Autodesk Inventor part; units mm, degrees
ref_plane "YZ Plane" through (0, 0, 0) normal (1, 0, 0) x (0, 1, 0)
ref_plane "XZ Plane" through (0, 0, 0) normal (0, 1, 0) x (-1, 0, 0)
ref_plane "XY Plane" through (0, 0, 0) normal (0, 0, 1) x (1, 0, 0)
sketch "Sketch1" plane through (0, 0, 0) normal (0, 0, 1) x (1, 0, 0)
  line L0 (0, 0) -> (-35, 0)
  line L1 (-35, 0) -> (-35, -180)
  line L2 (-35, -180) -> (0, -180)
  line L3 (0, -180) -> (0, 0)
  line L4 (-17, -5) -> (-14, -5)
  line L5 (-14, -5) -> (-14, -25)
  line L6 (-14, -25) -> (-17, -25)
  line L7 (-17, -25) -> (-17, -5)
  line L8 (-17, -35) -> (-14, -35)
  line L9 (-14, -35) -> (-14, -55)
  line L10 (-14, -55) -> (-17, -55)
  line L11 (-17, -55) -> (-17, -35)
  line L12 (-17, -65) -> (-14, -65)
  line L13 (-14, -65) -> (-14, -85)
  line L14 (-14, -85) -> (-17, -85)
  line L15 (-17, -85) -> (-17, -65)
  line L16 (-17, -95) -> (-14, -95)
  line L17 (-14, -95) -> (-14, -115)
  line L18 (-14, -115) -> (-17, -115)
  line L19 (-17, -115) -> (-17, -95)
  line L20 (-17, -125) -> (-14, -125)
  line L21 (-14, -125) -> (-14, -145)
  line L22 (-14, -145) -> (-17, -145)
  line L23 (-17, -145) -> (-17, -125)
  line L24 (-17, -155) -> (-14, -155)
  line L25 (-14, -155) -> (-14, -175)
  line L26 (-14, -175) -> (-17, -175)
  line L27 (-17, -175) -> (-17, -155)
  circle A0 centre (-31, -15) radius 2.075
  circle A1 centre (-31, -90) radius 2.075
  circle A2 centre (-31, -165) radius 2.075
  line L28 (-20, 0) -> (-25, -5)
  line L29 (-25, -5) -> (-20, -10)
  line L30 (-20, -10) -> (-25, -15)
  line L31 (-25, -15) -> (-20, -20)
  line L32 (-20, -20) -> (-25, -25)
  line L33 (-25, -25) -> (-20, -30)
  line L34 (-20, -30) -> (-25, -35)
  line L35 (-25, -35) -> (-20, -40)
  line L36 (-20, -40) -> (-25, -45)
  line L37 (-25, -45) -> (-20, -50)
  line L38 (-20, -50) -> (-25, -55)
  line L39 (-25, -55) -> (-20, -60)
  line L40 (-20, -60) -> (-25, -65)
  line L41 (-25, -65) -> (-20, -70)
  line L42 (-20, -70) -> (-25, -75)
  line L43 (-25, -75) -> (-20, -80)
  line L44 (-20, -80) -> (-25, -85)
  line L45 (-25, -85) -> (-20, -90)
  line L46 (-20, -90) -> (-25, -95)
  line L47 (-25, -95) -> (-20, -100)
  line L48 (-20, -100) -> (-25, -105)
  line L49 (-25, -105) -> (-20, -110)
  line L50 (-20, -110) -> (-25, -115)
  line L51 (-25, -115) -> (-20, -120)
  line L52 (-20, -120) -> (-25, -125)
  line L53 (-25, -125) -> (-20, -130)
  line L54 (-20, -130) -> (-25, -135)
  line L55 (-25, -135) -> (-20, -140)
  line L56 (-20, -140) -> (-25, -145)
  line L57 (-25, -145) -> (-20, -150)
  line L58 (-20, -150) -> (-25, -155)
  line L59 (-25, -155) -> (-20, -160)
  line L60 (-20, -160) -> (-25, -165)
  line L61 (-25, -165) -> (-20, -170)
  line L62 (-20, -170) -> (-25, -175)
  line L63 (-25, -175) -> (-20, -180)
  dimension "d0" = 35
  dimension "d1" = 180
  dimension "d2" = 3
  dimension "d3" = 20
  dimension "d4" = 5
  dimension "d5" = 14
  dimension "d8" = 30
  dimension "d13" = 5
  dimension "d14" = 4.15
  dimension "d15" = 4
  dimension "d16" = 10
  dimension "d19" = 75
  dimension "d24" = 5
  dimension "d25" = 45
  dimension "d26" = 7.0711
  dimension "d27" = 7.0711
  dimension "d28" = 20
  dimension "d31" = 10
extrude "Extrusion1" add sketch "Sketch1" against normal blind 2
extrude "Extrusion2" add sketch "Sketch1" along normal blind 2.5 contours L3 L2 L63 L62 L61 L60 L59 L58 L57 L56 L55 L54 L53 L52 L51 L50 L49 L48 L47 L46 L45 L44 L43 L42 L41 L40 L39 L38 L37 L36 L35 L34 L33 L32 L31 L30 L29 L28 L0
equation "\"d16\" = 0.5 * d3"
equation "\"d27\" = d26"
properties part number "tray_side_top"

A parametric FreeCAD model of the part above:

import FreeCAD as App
import Part
import Sketcher

V = App.Vector

doc = App.newDocument("Part")
params = doc.addObject("Spreadsheet::Sheet", "Params")
for row, (alias, value) in enumerate([
    ("sketch1_diameter", "4.15 mm"),
    ("sketch1_width", "35 mm"),
    ("sketch1_width2", "3 mm"),
    ("sketch1_height", "180 mm"),
    ("sketch1_height2", "20 mm"),
    ("pad1_length", "2 mm"),
    ("sketch2_width", "20 mm"),
    ("sketch2_width2", "3 mm"),
    ("pad2_length", "2.5 mm"),
], start=1):
    params.set(f"A{row}", alias)
    params.set(f"B{row}", "=" + value)
    params.setAlias(f"B{row}", alias)

body = doc.addObject("PartDesign::Body", "Body")

sketch1 = doc.addObject("Sketcher::SketchObject", "Sketch")
body.addObject(sketch1)
sketch1.AttachmentSupport = (doc.XY_Plane, [""])
sketch1.MapMode = "FlatFace"
sketch1.addGeometry([
    Part.LineSegment(V(0, -180, 0), V(0, 0, 0)),
    Part.LineSegment(V(0, 0, 0), V(-35, 0, 0)),
    Part.LineSegment(V(-35, 0, 0), V(-35, -180, 0)),
    Part.LineSegment(V(-35, -180, 0), V(0, -180, 0)),
    Part.LineSegment(V(-17, -175, 0), V(-17, -155, 0)),
    Part.LineSegment(V(-17, -155, 0), V(-14, -155, 0)),
    Part.LineSegment(V(-14, -155, 0), V(-14, -175, 0)),
    Part.LineSegment(V(-14, -175, 0), V(-17, -175, 0)),
    Part.LineSegment(V(-17, -145, 0), V(-17, -125, 0)),
    Part.LineSegment(V(-17, -125, 0), V(-14, -125, 0)),
    Part.LineSegment(V(-14, -125, 0), V(-14, -145, 0)),
    Part.LineSegment(V(-14, -145, 0), V(-17, -145, 0)),
    Part.LineSegment(V(-17, -115, 0), V(-17, -95, 0)),
    Part.LineSegment(V(-17, -95, 0), V(-14, -95, 0)),
    Part.LineSegment(V(-14, -95, 0), V(-14, -115, 0)),
    Part.LineSegment(V(-14, -115, 0), V(-17, -115, 0)),
    Part.LineSegment(V(-17, -85, 0), V(-17, -65, 0)),
    Part.LineSegment(V(-17, -65, 0), V(-14, -65, 0)),
    Part.LineSegment(V(-14, -65, 0), V(-14, -85, 0)),
    Part.LineSegment(V(-14, -85, 0), V(-17, -85, 0)),
    Part.LineSegment(V(-17, -55, 0), V(-17, -35, 0)),
    Part.LineSegment(V(-17, -35, 0), V(-14, -35, 0)),
    Part.LineSegment(V(-14, -35, 0), V(-14, -55, 0)),
    Part.LineSegment(V(-14, -55, 0), V(-17, -55, 0)),
    Part.LineSegment(V(-17, -25, 0), V(-17, -5, 0)),
    Part.LineSegment(V(-17, -5, 0), V(-14, -5, 0)),
    Part.LineSegment(V(-14, -5, 0), V(-14, -25, 0)),
    Part.LineSegment(V(-14, -25, 0), V(-17, -25, 0)),
    Part.Circle(V(-31, -165, 0), V(0, 0, 1), 2.1),
    Part.Circle(V(-31, -90, 0), V(0, 0, 1), 2.1),
    Part.Circle(V(-31, -15, 0), V(0, 0, 1), 2.1),
], False)
sketch1.addConstraint([
    Sketcher.Constraint("Coincident", 0, 2, 1, 1),
    Sketcher.Constraint("Coincident", 1, 2, 2, 1),
    Sketcher.Constraint("Coincident", 2, 2, 3, 1),
    Sketcher.Constraint("Coincident", 3, 2, 0, 1),
    Sketcher.Constraint("Coincident", 4, 2, 5, 1),
    Sketcher.Constraint("Coincident", 5, 2, 6, 1),
    Sketcher.Constraint("Coincident", 6, 2, 7, 1),
    Sketcher.Constraint("Coincident", 7, 2, 4, 1),
    Sketcher.Constraint("Coincident", 8, 2, 9, 1),
    Sketcher.Constraint("Coincident", 9, 2, 10, 1),
    Sketcher.Constraint("Coincident", 10, 2, 11, 1),
    Sketcher.Constraint("Coincident", 11, 2, 8, 1),
    Sketcher.Constraint("Coincident", 12, 2, 13, 1),
    Sketcher.Constraint("Coincident", 13, 2, 14, 1),
    Sketcher.Constraint("Coincident", 14, 2, 15, 1),
    Sketcher.Constraint("Coincident", 15, 2, 12, 1),
    Sketcher.Constraint("Coincident", 16, 2, 17, 1),
    Sketcher.Constraint("Coincident", 17, 2, 18, 1),
    Sketcher.Constraint("Coincident", 18, 2, 19, 1),
    Sketcher.Constraint("Coincident", 19, 2, 16, 1),
    Sketcher.Constraint("Coincident", 20, 2, 21, 1),
    Sketcher.Constraint("Coincident", 21, 2, 22, 1),
    Sketcher.Constraint("Coincident", 22, 2, 23, 1),
    Sketcher.Constraint("Coincident", 23, 2, 20, 1),
    Sketcher.Constraint("Coincident", 24, 2, 25, 1),
    Sketcher.Constraint("Coincident", 25, 2, 26, 1),
    Sketcher.Constraint("Coincident", 26, 2, 27, 1),
    Sketcher.Constraint("Coincident", 27, 2, 24, 1),
    Sketcher.Constraint("Vertical", 0),
    Sketcher.Constraint("Horizontal", 1),
    Sketcher.Constraint("Vertical", 2),
    Sketcher.Constraint("Horizontal", 3),
    Sketcher.Constraint("Vertical", 4),
    Sketcher.Constraint("Horizontal", 5),
    Sketcher.Constraint("Vertical", 6),
    Sketcher.Constraint("Horizontal", 7),
    Sketcher.Constraint("Vertical", 8),
    Sketcher.Constraint("Horizontal", 9),
    Sketcher.Constraint("Vertical", 10),
    Sketcher.Constraint("Horizontal", 11),
    Sketcher.Constraint("Vertical", 12),
    Sketcher.Constraint("Horizontal", 13),
    Sketcher.Constraint("Vertical", 14),
    Sketcher.Constraint("Horizontal", 15),
    Sketcher.Constraint("Vertical", 16),
    Sketcher.Constraint("Horizontal", 17),
    Sketcher.Constraint("Vertical", 18),
    Sketcher.Constraint("Horizontal", 19),
    Sketcher.Constraint("Vertical", 20),
    Sketcher.Constraint("Horizontal", 21),
    Sketcher.Constraint("Vertical", 22),
    Sketcher.Constraint("Horizontal", 23),
    Sketcher.Constraint("Vertical", 24),
    Sketcher.Constraint("Horizontal", 25),
    Sketcher.Constraint("Vertical", 26),
    Sketcher.Constraint("Horizontal", 27),
    Sketcher.Constraint("Coincident", 0, 2, -1, 1),
    Sketcher.Constraint("Equal", 28, 29),
    Sketcher.Constraint("Equal", 29, 30),
    Sketcher.Constraint("Vertical", 28, 3, 29, 3),
    Sketcher.Constraint("Vertical", 29, 3, 30, 3),
    Sketcher.Constraint("Vertical", 7, 2, 8, 2),
    Sketcher.Constraint("Vertical", 6, 2, 9, 2),
    Sketcher.Constraint("Vertical", 11, 2, 12, 2),
    Sketcher.Constraint("Vertical", 10, 2, 13, 2),
    Sketcher.Constraint("Vertical", 15, 2, 16, 2),
    Sketcher.Constraint("Vertical", 14, 2, 17, 2),
    Sketcher.Constraint("Vertical", 19, 2, 20, 2),
    Sketcher.Constraint("Vertical", 18, 2, 21, 2),
    Sketcher.Constraint("Vertical", 23, 2, 24, 2),
    Sketcher.Constraint("Vertical", 22, 2, 25, 2),
    Sketcher.Constraint("Equal", 6, 8),
    Sketcher.Constraint("Equal", 10, 12),
    Sketcher.Constraint("Equal", 14, 16),
    Sketcher.Constraint("Equal", 18, 20),
    Sketcher.Constraint("Equal", 22, 24),
    Sketcher.Constraint("Diameter", 28, 4.15),
    Sketcher.Constraint("DistanceX", 1, 2, 1, 1, 35.0),
    Sketcher.Constraint("DistanceX", 5, 1, 5, 2, 3.0),
    Sketcher.Constraint("DistanceY", 0, 1, 0, 2, 180.0),
    Sketcher.Constraint("DistanceY", 4, 1, 4, 2, 20.0),
    Sketcher.Constraint("DistanceX", 5, 2, -1, 1, 14.0),
    Sketcher.Constraint("DistanceY", 20, 2, -1, 1, 35.0),
    Sketcher.Constraint("DistanceY", 24, 2, -1, 1, 5.0),
    Sketcher.Constraint("DistanceY", 28, 3, 29, 3, 75.0),
    Sketcher.Constraint("DistanceY", 29, 3, 30, 3, 75.0),
    Sketcher.Constraint("DistanceX", 1, 2, 30, 3, 4.0),
    Sketcher.Constraint("DistanceY", 28, 3, 4, 2, 10.0),
    Sketcher.Constraint("DistanceY", 3, 2, 6, 2, 5.0),
    Sketcher.Constraint("DistanceY", 4, 2, 8, 2, 30.0),
    Sketcher.Constraint("DistanceY", 12, 2, 29, 3, 5.0),
    Sketcher.Constraint("DistanceY", 12, 2, 16, 2, 30.0),
])
sketch1.setExpression("Constraints[76]", "Params.sketch1_diameter")
sketch1.setExpression("Constraints[77]", "Params.sketch1_width")
sketch1.setExpression("Constraints[78]", "Params.sketch1_width2")
sketch1.setExpression("Constraints[79]", "Params.sketch1_height")
sketch1.setExpression("Constraints[80]", "Params.sketch1_height2")
pad1 = doc.addObject("PartDesign::Pad", "Pad")
body.addObject(pad1)
pad1.Profile = sketch1
pad1.setExpression("Length", "Params.pad1_length")
pad1.Reversed = True

sketch2 = doc.addObject("Sketcher::SketchObject", "Sketch001")
body.addObject(sketch2)
sketch2.AttachmentSupport = (doc.XY_Plane, [""])
sketch2.MapMode = "FlatFace"
sketch2.addGeometry([
    Part.LineSegment(V(0, -180, 0), V(0, 0, 0)),
    Part.LineSegment(V(0, 0, 0), V(-20, 0, 0)),
    Part.LineSegment(V(-20, 0, 0), V(-25, -5, 0)),
    Part.LineSegment(V(-25, -5, 0), V(-20, -10, 0)),
    Part.LineSegment(V(-20, -10, 0), V(-25, -15, 0)),
    Part.LineSegment(V(-25, -15, 0), V(-20, -20, 0)),
    Part.LineSegment(V(-20, -20, 0), V(-25, -25, 0)),
    Part.LineSegment(V(-25, -25, 0), V(-20, -30, 0)),
    Part.LineSegment(V(-20, -30, 0), V(-25, -35, 0)),
    Part.LineSegment(V(-25, -35, 0), V(-20, -40, 0)),
    Part.LineSegment(V(-20, -40, 0), V(-25, -45, 0)),
    Part.LineSegment(V(-25, -45, 0), V(-20, -50, 0)),
    Part.LineSegment(V(-20, -50, 0), V(-25, -55, 0)),
    Part.LineSegment(V(-25, -55, 0), V(-20, -60, 0)),
    Part.LineSegment(V(-20, -60, 0), V(-25, -65, 0)),
    Part.LineSegment(V(-25, -65, 0), V(-20, -70, 0)),
    Part.LineSegment(V(-20, -70, 0), V(-25, -75, 0)),
    Part.LineSegment(V(-25, -75, 0), V(-20, -80, 0)),
    Part.LineSegment(V(-20, -80, 0), V(-25, -85, 0)),
    Part.LineSegment(V(-25, -85, 0), V(-20, -90, 0)),
    Part.LineSegment(V(-20, -90, 0), V(-25, -95, 0)),
    Part.LineSegment(V(-25, -95, 0), V(-20, -100, 0)),
    Part.LineSegment(V(-20, -100, 0), V(-25, -105, 0)),
    Part.LineSegment(V(-25, -105, 0), V(-20, -110, 0)),
    Part.LineSegment(V(-20, -110, 0), V(-25, -115, 0)),
    Part.LineSegment(V(-25, -115, 0), V(-20, -120, 0)),
    Part.LineSegment(V(-20, -120, 0), V(-25, -125, 0)),
    Part.LineSegment(V(-25, -125, 0), V(-20, -130, 0)),
    Part.LineSegment(V(-20, -130, 0), V(-25, -135, 0)),
    Part.LineSegment(V(-25, -135, 0), V(-20, -140, 0)),
    Part.LineSegment(V(-20, -140, 0), V(-25, -145, 0)),
    Part.LineSegment(V(-25, -145, 0), V(-20, -150, 0)),
    Part.LineSegment(V(-20, -150, 0), V(-25, -155, 0)),
    Part.LineSegment(V(-25, -155, 0), V(-20, -160, 0)),
    Part.LineSegment(V(-20, -160, 0), V(-25, -165, 0)),
    Part.LineSegment(V(-25, -165, 0), V(-20, -170, 0)),
    Part.LineSegment(V(-20, -170, 0), V(-25, -175, 0)),
    Part.LineSegment(V(-25, -175, 0), V(-20, -180, 0)),
    Part.LineSegment(V(-20, -180, 0), V(0, -180, 0)),
    Part.LineSegment(V(-17, -175, 0), V(-17, -155, 0)),
    Part.LineSegment(V(-17, -155, 0), V(-14, -155, 0)),
    Part.LineSegment(V(-14, -155, 0), V(-14, -175, 0)),
    Part.LineSegment(V(-14, -175, 0), V(-17, -175, 0)),
    Part.LineSegment(V(-17, -145, 0), V(-17, -125, 0)),
    Part.LineSegment(V(-17, -125, 0), V(-14, -125, 0)),
    Part.LineSegment(V(-14, -125, 0), V(-14, -145, 0)),
    Part.LineSegment(V(-14, -145, 0), V(-17, -145, 0)),
    Part.LineSegment(V(-17, -115, 0), V(-17, -95, 0)),
    Part.LineSegment(V(-17, -95, 0), V(-14, -95, 0)),
    Part.LineSegment(V(-14, -95, 0), V(-14, -115, 0)),
    Part.LineSegment(V(-14, -115, 0), V(-17, -115, 0)),
    Part.LineSegment(V(-17, -85, 0), V(-17, -65, 0)),
    Part.LineSegment(V(-17, -65, 0), V(-14, -65, 0)),
    Part.LineSegment(V(-14, -65, 0), V(-14, -85, 0)),
    Part.LineSegment(V(-14, -85, 0), V(-17, -85, 0)),
    Part.LineSegment(V(-17, -55, 0), V(-17, -35, 0)),
    Part.LineSegment(V(-17, -35, 0), V(-14, -35, 0)),
    Part.LineSegment(V(-14, -35, 0), V(-14, -55, 0)),
    Part.LineSegment(V(-14, -55, 0), V(-17, -55, 0)),
    Part.LineSegment(V(-17, -25, 0), V(-17, -5, 0)),
    Part.LineSegment(V(-17, -5, 0), V(-14, -5, 0)),
    Part.LineSegment(V(-14, -5, 0), V(-14, -25, 0)),
    Part.LineSegment(V(-14, -25, 0), V(-17, -25, 0)),
], False)
sketch2.addConstraint([
    Sketcher.Constraint("Coincident", 0, 2, 1, 1),
    Sketcher.Constraint("Coincident", 1, 2, 2, 1),
    Sketcher.Constraint("Coincident", 2, 2, 3, 1),
    Sketcher.Constraint("Coincident", 3, 2, 4, 1),
    Sketcher.Constraint("Coincident", 4, 2, 5, 1),
    Sketcher.Constraint("Coincident", 5, 2, 6, 1),
    Sketcher.Constraint("Coincident", 6, 2, 7, 1),
    Sketcher.Constraint("Coincident", 7, 2, 8, 1),
    Sketcher.Constraint("Coincident", 8, 2, 9, 1),
    Sketcher.Constraint("Coincident", 9, 2, 10, 1),
    Sketcher.Constraint("Coincident", 10, 2, 11, 1),
    Sketcher.Constraint("Coincident", 11, 2, 12, 1),
    Sketcher.Constraint("Coincident", 12, 2, 13, 1),
    Sketcher.Constraint("Coincident", 13, 2, 14, 1),
    Sketcher.Constraint("Coincident", 14, 2, 15, 1),
    Sketcher.Constraint("Coincident", 15, 2, 16, 1),
    Sketcher.Constraint("Coincident", 16, 2, 17, 1),
    Sketcher.Constraint("Coincident", 17, 2, 18, 1),
    Sketcher.Constraint("Coincident", 18, 2, 19, 1),
    Sketcher.Constraint("Coincident", 19, 2, 20, 1),
    Sketcher.Constraint("Coincident", 20, 2, 21, 1),
    Sketcher.Constraint("Coincident", 21, 2, 22, 1),
    Sketcher.Constraint("Coincident", 22, 2, 23, 1),
    Sketcher.Constraint("Coincident", 23, 2, 24, 1),
    Sketcher.Constraint("Coincident", 24, 2, 25, 1),
    Sketcher.Constraint("Coincident", 25, 2, 26, 1),
    Sketcher.Constraint("Coincident", 26, 2, 27, 1),
    Sketcher.Constraint("Coincident", 27, 2, 28, 1),
    Sketcher.Constraint("Coincident", 28, 2, 29, 1),
    Sketcher.Constraint("Coincident", 29, 2, 30, 1),
    Sketcher.Constraint("Coincident", 30, 2, 31, 1),
    Sketcher.Constraint("Coincident", 31, 2, 32, 1),
    Sketcher.Constraint("Coincident", 32, 2, 33, 1),
    Sketcher.Constraint("Coincident", 33, 2, 34, 1),
    Sketcher.Constraint("Coincident", 34, 2, 35, 1),
    Sketcher.Constraint("Coincident", 35, 2, 36, 1),
    Sketcher.Constraint("Coincident", 36, 2, 37, 1),
    Sketcher.Constraint("Coincident", 37, 2, 38, 1),
    Sketcher.Constraint("Coincident", 38, 2, 0, 1),
    Sketcher.Constraint("Coincident", 39, 2, 40, 1),
    Sketcher.Constraint("Coincident", 40, 2, 41, 1),
    Sketcher.Constraint("Coincident", 41, 2, 42, 1),
    Sketcher.Constraint("Coincident", 42, 2, 39, 1),
    Sketcher.Constraint("Coincident", 43, 2, 44, 1),
    Sketcher.Constraint("Coincident", 44, 2, 45, 1),
    Sketcher.Constraint("Coincident", 45, 2, 46, 1),
    Sketcher.Constraint("Coincident", 46, 2, 43, 1),
    Sketcher.Constraint("Coincident", 47, 2, 48, 1),
    Sketcher.Constraint("Coincident", 48, 2, 49, 1),
    Sketcher.Constraint("Coincident", 49, 2, 50, 1),
    Sketcher.Constraint("Coincident", 50, 2, 47, 1),
    Sketcher.Constraint("Coincident", 51, 2, 52, 1),
    Sketcher.Constraint("Coincident", 52, 2, 53, 1),
    Sketcher.Constraint("Coincident", 53, 2, 54, 1),
    Sketcher.Constraint("Coincident", 54, 2, 51, 1),
    Sketcher.Constraint("Coincident", 55, 2, 56, 1),
    Sketcher.Constraint("Coincident", 56, 2, 57, 1),
    Sketcher.Constraint("Coincident", 57, 2, 58, 1),
    Sketcher.Constraint("Coincident", 58, 2, 55, 1),
    Sketcher.Constraint("Coincident", 59, 2, 60, 1),
    Sketcher.Constraint("Coincident", 60, 2, 61, 1),
    Sketcher.Constraint("Coincident", 61, 2, 62, 1),
    Sketcher.Constraint("Coincident", 62, 2, 59, 1),
    Sketcher.Constraint("Vertical", 0),
    Sketcher.Constraint("Horizontal", 1),
    Sketcher.Constraint("Horizontal", 38),
    Sketcher.Constraint("Vertical", 39),
    Sketcher.Constraint("Horizontal", 40),
    Sketcher.Constraint("Vertical", 41),
    Sketcher.Constraint("Horizontal", 42),
    Sketcher.Constraint("Vertical", 43),
    Sketcher.Constraint("Horizontal", 44),
    Sketcher.Constraint("Vertical", 45),
    Sketcher.Constraint("Horizontal", 46),
    Sketcher.Constraint("Vertical", 47),
    Sketcher.Constraint("Horizontal", 48),
    Sketcher.Constraint("Vertical", 49),
    Sketcher.Constraint("Horizontal", 50),
    Sketcher.Constraint("Vertical", 51),
    Sketcher.Constraint("Horizontal", 52),
    Sketcher.Constraint("Vertical", 53),
    Sketcher.Constraint("Horizontal", 54),
    Sketcher.Constraint("Vertical", 55),
    Sketcher.Constraint("Horizontal", 56),
    Sketcher.Constraint("Vertical", 57),
    Sketcher.Constraint("Horizontal", 58),
    Sketcher.Constraint("Vertical", 59),
    Sketcher.Constraint("Horizontal", 60),
    Sketcher.Constraint("Vertical", 61),
    Sketcher.Constraint("Horizontal", 62),
    Sketcher.Constraint("Coincident", 0, 2, -1, 1),
    Sketcher.Constraint("Perpendicular", 2, 3),
    Sketcher.Constraint("Perpendicular", 3, 4),
    Sketcher.Constraint("Perpendicular", 4, 5),
    Sketcher.Constraint("Perpendicular", 5, 6),
    Sketcher.Constraint("Perpendicular", 6, 7),
    Sketcher.Constraint("Perpendicular", 7, 8),
    Sketcher.Constraint("Perpendicular", 8, 9),
    Sketcher.Constraint("Perpendicular", 9, 10),
    Sketcher.Constraint("Perpendicular", 10, 11),
    Sketcher.Constraint("Perpendicular", 11, 12),
    Sketcher.Constraint("Perpendicular", 12, 13),
    Sketcher.Constraint("Perpendicular", 13, 14),
    Sketcher.Constraint("Perpendicular", 14, 15),
    Sketcher.Constraint("Perpendicular", 15, 16),
    Sketcher.Constraint("Perpendicular", 16, 17),
    Sketcher.Constraint("Perpendicular", 17, 18),
    Sketcher.Constraint("Perpendicular", 18, 19),
    Sketcher.Constraint("Perpendicular", 19, 20),
    Sketcher.Constraint("Perpendicular", 20, 21),
    Sketcher.Constraint("Perpendicular", 21, 22),
    Sketcher.Constraint("Perpendicular", 22, 23),
    Sketcher.Constraint("Perpendicular", 23, 24),
    Sketcher.Constraint("Perpendicular", 24, 25),
    Sketcher.Constraint("Perpendicular", 25, 26),
    Sketcher.Constraint("Perpendicular", 26, 27),
    Sketcher.Constraint("Perpendicular", 27, 28),
    Sketcher.Constraint("Perpendicular", 28, 29),
    Sketcher.Constraint("Perpendicular", 29, 30),
    Sketcher.Constraint("Perpendicular", 30, 31),
    Sketcher.Constraint("Perpendicular", 31, 32),
    Sketcher.Constraint("Perpendicular", 32, 33),
    Sketcher.Constraint("Perpendicular", 33, 34),
    Sketcher.Constraint("Perpendicular", 34, 35),
    Sketcher.Constraint("Perpendicular", 35, 36),
    Sketcher.Constraint("Perpendicular", 36, 37),
    Sketcher.Constraint("Horizontal", 32, 2, 39, 2),
    Sketcher.Constraint("Horizontal", 36, 2, 41, 2),
    Sketcher.Constraint("Horizontal", 26, 2, 43, 2),
    Sketcher.Constraint("Horizontal", 30, 2, 45, 2),
    Sketcher.Constraint("Horizontal", 20, 2, 47, 2),
    Sketcher.Constraint("Horizontal", 24, 2, 49, 2),
    Sketcher.Constraint("Horizontal", 14, 2, 51, 2),
    Sketcher.Constraint("Horizontal", 18, 2, 53, 2),
    Sketcher.Constraint("Horizontal", 8, 2, 55, 2),
    Sketcher.Constraint("Horizontal", 12, 2, 57, 2),
    Sketcher.Constraint("Horizontal", 2, 2, 59, 2),
    Sketcher.Constraint("Horizontal", 6, 2, 61, 2),
    Sketcher.Constraint("Vertical", 1, 2, 3, 2),
    Sketcher.Constraint("Vertical", 2, 2, 4, 2),
    Sketcher.Constraint("Vertical", 3, 2, 5, 2),
    Sketcher.Constraint("Vertical", 4, 2, 6, 2),
    Sketcher.Constraint("Vertical", 5, 2, 7, 2),
    Sketcher.Constraint("Vertical", 6, 2, 8, 2),
    Sketcher.Constraint("Vertical", 7, 2, 9, 2),
    Sketcher.Constraint("Vertical", 8, 2, 10, 2),
    Sketcher.Constraint("Vertical", 9, 2, 11, 2),
    Sketcher.Constraint("Vertical", 10, 2, 12, 2),
    Sketcher.Constraint("Vertical", 11, 2, 13, 2),
    Sketcher.Constraint("Vertical", 12, 2, 14, 2),
    Sketcher.Constraint("Vertical", 13, 2, 15, 2),
    Sketcher.Constraint("Vertical", 14, 2, 16, 2),
    Sketcher.Constraint("Vertical", 15, 2, 17, 2),
    Sketcher.Constraint("Vertical", 16, 2, 18, 2),
    Sketcher.Constraint("Vertical", 17, 2, 19, 2),
    Sketcher.Constraint("Vertical", 18, 2, 20, 2),
    Sketcher.Constraint("Vertical", 19, 2, 21, 2),
    Sketcher.Constraint("Vertical", 20, 2, 22, 2),
    Sketcher.Constraint("Vertical", 21, 2, 23, 2),
    Sketcher.Constraint("Vertical", 22, 2, 24, 2),
    Sketcher.Constraint("Vertical", 23, 2, 25, 2),
    Sketcher.Constraint("Vertical", 24, 2, 26, 2),
    Sketcher.Constraint("Vertical", 25, 2, 27, 2),
    Sketcher.Constraint("Vertical", 26, 2, 28, 2),
    Sketcher.Constraint("Vertical", 27, 2, 29, 2),
    Sketcher.Constraint("Vertical", 28, 2, 30, 2),
    Sketcher.Constraint("Vertical", 29, 2, 31, 2),
    Sketcher.Constraint("Vertical", 30, 2, 32, 2),
    Sketcher.Constraint("Vertical", 31, 2, 33, 2),
    Sketcher.Constraint("Vertical", 32, 2, 34, 2),
    Sketcher.Constraint("Vertical", 33, 2, 35, 2),
    Sketcher.Constraint("Vertical", 34, 2, 36, 2),
    Sketcher.Constraint("Vertical", 35, 2, 37, 2),
    Sketcher.Constraint("Vertical", 42, 2, 43, 2),
    Sketcher.Constraint("Vertical", 41, 2, 44, 2),
    Sketcher.Constraint("Vertical", 46, 2, 47, 2),
    Sketcher.Constraint("Vertical", 45, 2, 48, 2),
    Sketcher.Constraint("Vertical", 50, 2, 51, 2),
    Sketcher.Constraint("Vertical", 49, 2, 52, 2),
    Sketcher.Constraint("Vertical", 54, 2, 55, 2),
    Sketcher.Constraint("Vertical", 53, 2, 56, 2),
    Sketcher.Constraint("Vertical", 58, 2, 59, 2),
    Sketcher.Constraint("Vertical", 57, 2, 60, 2),
    Sketcher.Constraint("Equal", 38, 39),
    Sketcher.Constraint("Equal", 2, 3),
    Sketcher.Constraint("DistanceX", 1, 2, 1, 1, 20.0),
    Sketcher.Constraint("DistanceX", 40, 1, 40, 2, 3.0),
    Sketcher.Constraint("DistanceX", 40, 2, -1, 1, 14.0),
])
sketch2.setExpression("Constraints[185]", "Params.sketch2_width")
sketch2.setExpression("Constraints[186]", "Params.sketch2_width2")
pad2 = doc.addObject("PartDesign::Pad", "Pad001")
body.addObject(pad2)
pad2.Profile = sketch2
pad2.setExpression("Length", "Params.pad2_length")

doc.recompute()
